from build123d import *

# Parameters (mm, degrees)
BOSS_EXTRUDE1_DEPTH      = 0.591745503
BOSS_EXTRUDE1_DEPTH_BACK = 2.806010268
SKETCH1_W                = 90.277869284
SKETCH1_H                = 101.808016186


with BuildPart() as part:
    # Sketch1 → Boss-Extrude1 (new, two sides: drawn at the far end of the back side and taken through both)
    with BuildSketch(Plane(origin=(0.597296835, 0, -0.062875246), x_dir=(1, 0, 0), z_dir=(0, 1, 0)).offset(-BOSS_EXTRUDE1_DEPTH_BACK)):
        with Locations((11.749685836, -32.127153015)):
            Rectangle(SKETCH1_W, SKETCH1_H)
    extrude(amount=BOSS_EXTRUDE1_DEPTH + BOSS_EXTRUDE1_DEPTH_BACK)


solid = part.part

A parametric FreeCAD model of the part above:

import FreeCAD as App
import Part
import Sketcher
Q = App.Units.Quantity

doc = App.newDocument("Part")
body = doc.addObject("PartDesign::Body", "Body")

sketch1 = body.newObject("Sketcher::SketchObject", "Sketch")
sketch1.AttachmentSupport = (doc.getObject("XZ_Plane"), [""])
sketch1.MapMode = "FlatFace"
sketch1.addGeometry([
    Part.LineSegment(App.Vector(-33, -19, 0), App.Vector(-33, 83, 0)),
    Part.LineSegment(App.Vector(-33, 83, 0), App.Vector(57, 83, 0)),
    Part.LineSegment(App.Vector(57, 83, 0), App.Vector(57, -19, 0)),
    Part.LineSegment(App.Vector(57, -19, 0), App.Vector(-33, -19, 0)),
], False)
sketch1.addConstraint([
    Sketcher.Constraint("Coincident", 0, 2, 1, 1),
    Sketcher.Constraint("Coincident", 1, 2, 2, 1),
    Sketcher.Constraint("Coincident", 2, 2, 3, 1),
    Sketcher.Constraint("Coincident", 3, 2, 0, 1),
    Sketcher.Constraint("Vertical", 0),
    Sketcher.Constraint("Horizontal", 1),
    Sketcher.Constraint("Vertical", 2),
    Sketcher.Constraint("Horizontal", 3),
    Sketcher.Constraint("DistanceX", 1, 1, 1, 2, Q("90.277869 mm")),
    Sketcher.Constraint("DistanceY", 0, 1, 0, 2, Q("101.808016 mm")),
    Sketcher.Constraint("DistanceX", 0, 2, -1, 1, Q("32.791952 mm")),
    Sketcher.Constraint("DistanceY", 2, 2, -1, 1, Q("18.83973 mm")),
])
pad1 = body.newObject("PartDesign::Pad", "Pad")
pad1.Profile = sketch1
pad1.Type = "TwoLengths"
pad1.Length = 0.591746
pad1.Length2 = 2.80601
pad1.Reversed = True

doc.recompute()
